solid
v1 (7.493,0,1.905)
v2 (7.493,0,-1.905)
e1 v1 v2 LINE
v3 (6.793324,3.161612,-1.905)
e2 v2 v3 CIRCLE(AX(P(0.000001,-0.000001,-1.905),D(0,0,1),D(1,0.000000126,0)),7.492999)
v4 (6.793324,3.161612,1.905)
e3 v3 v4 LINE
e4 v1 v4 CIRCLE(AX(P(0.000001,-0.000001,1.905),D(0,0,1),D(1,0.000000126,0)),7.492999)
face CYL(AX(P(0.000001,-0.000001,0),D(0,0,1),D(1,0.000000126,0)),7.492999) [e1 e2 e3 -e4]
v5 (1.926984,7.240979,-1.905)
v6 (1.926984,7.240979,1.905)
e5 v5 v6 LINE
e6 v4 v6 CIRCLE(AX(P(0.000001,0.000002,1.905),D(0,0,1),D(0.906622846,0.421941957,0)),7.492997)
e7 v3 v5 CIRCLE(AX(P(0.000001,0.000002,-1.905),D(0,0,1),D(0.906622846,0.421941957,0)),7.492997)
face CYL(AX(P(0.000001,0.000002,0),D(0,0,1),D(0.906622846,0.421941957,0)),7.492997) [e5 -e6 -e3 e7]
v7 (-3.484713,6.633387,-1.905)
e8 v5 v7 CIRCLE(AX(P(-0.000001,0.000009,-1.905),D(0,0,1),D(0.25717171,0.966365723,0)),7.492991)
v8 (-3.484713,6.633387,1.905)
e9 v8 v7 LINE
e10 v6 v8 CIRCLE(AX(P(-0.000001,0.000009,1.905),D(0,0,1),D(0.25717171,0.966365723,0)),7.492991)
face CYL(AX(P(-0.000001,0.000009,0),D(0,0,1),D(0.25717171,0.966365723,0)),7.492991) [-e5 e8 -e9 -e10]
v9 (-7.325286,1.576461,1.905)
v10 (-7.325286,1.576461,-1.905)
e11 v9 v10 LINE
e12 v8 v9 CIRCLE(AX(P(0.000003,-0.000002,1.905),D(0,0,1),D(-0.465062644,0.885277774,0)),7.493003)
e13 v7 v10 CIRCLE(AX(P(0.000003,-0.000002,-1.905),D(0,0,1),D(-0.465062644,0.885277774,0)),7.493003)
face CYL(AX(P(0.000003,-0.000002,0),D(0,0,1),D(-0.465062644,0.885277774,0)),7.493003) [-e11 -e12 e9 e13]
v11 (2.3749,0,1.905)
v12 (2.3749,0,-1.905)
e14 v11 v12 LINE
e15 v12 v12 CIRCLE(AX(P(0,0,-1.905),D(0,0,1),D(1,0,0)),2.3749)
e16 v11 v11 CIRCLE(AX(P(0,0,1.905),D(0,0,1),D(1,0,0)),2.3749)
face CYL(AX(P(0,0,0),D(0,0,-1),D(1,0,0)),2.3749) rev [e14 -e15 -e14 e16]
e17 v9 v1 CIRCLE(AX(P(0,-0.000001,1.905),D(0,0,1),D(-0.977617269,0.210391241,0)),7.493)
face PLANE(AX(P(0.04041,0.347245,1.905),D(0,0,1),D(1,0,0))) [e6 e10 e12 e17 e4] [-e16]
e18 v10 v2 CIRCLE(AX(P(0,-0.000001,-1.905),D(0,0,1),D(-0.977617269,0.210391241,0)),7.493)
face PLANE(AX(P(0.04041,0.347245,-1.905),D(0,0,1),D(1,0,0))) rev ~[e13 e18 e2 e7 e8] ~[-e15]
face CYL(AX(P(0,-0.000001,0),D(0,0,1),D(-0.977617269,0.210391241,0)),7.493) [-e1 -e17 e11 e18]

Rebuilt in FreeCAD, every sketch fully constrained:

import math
import FreeCAD as App
import Part
import Sketcher
from FreeCAD import Vector
Q = App.Units.Quantity

doc = App.newDocument("Part")
body = doc.addObject("PartDesign::Body", "Body")

sketch1 = body.newObject("Sketcher::SketchObject", "Sketch")
sketch1.AttachmentSupport = (doc.getObject("XY_Plane"), [""])
sketch1.MapMode = "FlatFace"
sketch1.addGeometry([
    Part.ArcOfCircle(Part.Circle(Vector(0, 0, 0), Vector(0, 0, 1), 7.5), math.radians(0), math.radians(25)),
    Part.ArcOfCircle(Part.Circle(Vector(0, 0, 0), Vector(0, 0, 1), 7.5), math.radians(25), math.radians(75)),
    Part.ArcOfCircle(Part.Circle(Vector(0, 0, 0), Vector(0, 0, 1), 7.5), math.radians(75), math.radians(118)),
    Part.ArcOfCircle(Part.Circle(Vector(0, 0, 0), Vector(0, 0, 1), 7.5), math.radians(118), math.radians(168)),
    Part.ArcOfCircle(Part.Circle(Vector(0, 0, 0), Vector(0, 0, 1), 7.5), math.radians(168), math.radians(360)),
    Part.Circle(Vector(0, 0, 0), Vector(0, 0, 1), 2.4),
], False)
sketch1.addConstraint([
    Sketcher.Constraint("Tangent", 0, 2, 1, 1),
    Sketcher.Constraint("Tangent", 1, 2, 2, 1),
    Sketcher.Constraint("Tangent", 2, 2, 3, 1),
    Sketcher.Constraint("Tangent", 3, 2, 4, 1),
    Sketcher.Constraint("Tangent", 4, 2, 0, 1),
    Sketcher.Constraint("Coincident", 0, 3, -1, 1),
    Sketcher.Constraint("Coincident", 2, 3, -1, 1),
    Sketcher.Constraint("Coincident", 5, 3, -1, 1),
    Sketcher.Constraint("PointOnObject", 4, 2, -1),
    Sketcher.Constraint("Diameter", 5, Q("0.187 in")),
    Sketcher.Constraint("Radius", 0, Q("0.295 in")),
    Sketcher.Constraint("DistanceY", -1, 1, 1, 2, 7.240979),
    Sketcher.Constraint("DistanceY", -1, 1, 3, 2, 1.576461),
    Sketcher.Constraint("DistanceY", 1, 3, 0, 2, 3.16161),
    Sketcher.Constraint("DistanceX", 2, 2, 2, 3, 3.484712),
])
pad1 = body.newObject("PartDesign::Pad", "Pad")
pad1.Profile = sketch1
pad1.Length = Q("0.15 in")
pad1.Midplane = True

doc.recompute()
